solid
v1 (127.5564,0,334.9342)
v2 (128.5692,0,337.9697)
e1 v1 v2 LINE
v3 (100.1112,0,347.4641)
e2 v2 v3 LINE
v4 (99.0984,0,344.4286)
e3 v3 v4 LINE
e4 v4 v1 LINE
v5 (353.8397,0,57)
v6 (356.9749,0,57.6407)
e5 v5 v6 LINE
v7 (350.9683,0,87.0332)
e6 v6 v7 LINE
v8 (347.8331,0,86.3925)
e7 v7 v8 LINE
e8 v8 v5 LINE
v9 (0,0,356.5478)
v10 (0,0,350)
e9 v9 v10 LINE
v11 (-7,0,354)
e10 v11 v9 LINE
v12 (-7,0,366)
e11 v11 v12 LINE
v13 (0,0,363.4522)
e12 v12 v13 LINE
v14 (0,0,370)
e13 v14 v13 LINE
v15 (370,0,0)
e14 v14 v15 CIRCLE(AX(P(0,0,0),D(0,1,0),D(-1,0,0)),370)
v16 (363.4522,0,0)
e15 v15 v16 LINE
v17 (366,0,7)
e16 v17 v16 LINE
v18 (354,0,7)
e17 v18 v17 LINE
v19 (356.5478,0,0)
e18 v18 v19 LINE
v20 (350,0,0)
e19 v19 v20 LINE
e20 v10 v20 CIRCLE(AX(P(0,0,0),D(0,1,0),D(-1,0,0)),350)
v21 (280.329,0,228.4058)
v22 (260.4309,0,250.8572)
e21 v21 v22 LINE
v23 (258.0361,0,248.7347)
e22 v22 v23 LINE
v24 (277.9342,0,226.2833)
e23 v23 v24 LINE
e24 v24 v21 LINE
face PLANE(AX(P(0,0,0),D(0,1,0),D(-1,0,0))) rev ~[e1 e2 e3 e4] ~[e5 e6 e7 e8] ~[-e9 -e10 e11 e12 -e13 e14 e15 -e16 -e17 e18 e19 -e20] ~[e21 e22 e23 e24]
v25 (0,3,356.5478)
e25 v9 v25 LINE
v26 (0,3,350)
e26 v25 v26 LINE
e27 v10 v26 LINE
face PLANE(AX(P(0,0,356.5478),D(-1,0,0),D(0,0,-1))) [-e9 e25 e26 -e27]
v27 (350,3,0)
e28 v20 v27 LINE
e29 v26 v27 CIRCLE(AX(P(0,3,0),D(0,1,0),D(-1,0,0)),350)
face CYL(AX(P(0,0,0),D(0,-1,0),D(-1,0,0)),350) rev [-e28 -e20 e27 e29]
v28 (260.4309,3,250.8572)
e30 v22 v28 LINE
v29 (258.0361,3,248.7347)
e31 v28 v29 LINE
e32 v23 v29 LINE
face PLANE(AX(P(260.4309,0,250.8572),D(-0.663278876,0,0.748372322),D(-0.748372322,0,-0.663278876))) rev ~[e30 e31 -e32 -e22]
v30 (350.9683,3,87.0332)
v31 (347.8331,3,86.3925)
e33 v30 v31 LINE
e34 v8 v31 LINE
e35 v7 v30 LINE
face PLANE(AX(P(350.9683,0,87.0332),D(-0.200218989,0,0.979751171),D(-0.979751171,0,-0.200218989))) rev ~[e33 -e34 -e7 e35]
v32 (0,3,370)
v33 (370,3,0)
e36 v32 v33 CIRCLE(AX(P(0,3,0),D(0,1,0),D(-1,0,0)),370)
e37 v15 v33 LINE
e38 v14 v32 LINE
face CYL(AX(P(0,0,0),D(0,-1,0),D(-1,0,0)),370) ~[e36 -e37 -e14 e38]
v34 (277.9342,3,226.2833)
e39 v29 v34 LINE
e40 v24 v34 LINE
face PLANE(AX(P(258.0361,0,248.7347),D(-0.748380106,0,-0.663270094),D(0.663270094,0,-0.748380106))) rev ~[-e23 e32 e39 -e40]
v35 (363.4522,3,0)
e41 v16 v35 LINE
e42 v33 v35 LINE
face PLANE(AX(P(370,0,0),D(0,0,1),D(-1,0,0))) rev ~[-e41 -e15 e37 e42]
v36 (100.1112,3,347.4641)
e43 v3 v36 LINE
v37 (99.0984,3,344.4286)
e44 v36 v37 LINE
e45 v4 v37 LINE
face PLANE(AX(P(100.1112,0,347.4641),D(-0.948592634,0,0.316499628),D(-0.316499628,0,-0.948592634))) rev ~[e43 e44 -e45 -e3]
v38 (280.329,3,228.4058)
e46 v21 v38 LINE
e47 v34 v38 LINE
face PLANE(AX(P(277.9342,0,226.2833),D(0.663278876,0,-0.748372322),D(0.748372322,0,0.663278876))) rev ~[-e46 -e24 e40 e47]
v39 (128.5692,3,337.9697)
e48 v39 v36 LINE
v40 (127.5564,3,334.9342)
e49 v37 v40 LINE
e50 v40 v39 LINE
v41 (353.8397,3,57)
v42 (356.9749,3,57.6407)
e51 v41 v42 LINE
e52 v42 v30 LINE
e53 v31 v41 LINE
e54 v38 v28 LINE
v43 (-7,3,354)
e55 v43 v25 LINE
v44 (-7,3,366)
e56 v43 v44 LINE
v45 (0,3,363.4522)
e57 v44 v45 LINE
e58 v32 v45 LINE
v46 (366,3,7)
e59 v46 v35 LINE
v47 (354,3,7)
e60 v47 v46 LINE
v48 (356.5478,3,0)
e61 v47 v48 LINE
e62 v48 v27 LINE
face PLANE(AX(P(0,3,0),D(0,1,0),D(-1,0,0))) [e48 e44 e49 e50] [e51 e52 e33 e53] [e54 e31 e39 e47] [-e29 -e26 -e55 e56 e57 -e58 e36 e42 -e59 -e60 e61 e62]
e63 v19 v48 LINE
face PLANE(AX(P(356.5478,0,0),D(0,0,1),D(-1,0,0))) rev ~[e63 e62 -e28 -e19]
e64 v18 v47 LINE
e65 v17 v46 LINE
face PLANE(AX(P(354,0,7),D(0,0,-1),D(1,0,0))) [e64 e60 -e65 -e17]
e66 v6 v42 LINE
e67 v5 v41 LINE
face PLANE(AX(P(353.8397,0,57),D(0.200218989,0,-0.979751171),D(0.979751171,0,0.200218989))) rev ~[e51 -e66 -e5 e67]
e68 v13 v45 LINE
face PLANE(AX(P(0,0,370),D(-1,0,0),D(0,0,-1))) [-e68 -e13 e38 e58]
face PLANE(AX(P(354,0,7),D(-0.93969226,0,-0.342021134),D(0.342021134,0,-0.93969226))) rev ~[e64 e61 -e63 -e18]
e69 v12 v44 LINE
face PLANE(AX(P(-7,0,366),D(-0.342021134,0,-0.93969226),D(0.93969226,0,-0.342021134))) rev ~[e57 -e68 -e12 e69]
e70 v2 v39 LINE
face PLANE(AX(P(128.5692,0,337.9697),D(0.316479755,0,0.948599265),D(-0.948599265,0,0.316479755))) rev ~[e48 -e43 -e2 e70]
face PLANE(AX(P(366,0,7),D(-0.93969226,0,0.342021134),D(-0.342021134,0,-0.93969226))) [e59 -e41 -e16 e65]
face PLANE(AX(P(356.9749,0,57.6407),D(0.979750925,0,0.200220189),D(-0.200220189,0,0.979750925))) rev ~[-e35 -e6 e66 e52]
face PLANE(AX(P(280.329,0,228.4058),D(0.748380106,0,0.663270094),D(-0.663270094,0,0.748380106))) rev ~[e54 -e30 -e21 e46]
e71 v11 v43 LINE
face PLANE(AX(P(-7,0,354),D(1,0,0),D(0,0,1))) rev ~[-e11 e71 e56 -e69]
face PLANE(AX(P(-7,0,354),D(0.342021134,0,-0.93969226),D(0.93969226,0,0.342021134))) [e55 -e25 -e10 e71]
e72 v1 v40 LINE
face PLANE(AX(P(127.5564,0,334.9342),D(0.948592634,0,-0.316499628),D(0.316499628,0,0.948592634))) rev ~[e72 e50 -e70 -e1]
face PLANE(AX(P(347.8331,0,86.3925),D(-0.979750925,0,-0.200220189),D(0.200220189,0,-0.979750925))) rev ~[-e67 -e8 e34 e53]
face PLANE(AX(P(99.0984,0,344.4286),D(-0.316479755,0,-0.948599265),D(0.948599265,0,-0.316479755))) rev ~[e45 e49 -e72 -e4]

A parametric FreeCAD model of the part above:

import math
import FreeCAD as App
import Part
import Sketcher
from FreeCAD import Vector
Q = App.Units.Quantity


def add_polygon(sketch, points):
    """Adds a closed chain of lines whose ends are joined by coincident constraints."""
    first, n = sketch.GeometryCount, len(points)
    for a, b in zip(points, points[1:] + points[:1]):
        sketch.addGeometry(Part.LineSegment(App.Vector(*a, 0), App.Vector(*b, 0)), False)
    for i in range(n):
        sketch.addConstraint(Sketcher.Constraint("Coincident", first + i, 2, first + (i + 1) % n, 1))

doc = App.newDocument("Part")
body = doc.addObject("PartDesign::Body", "Body")

# Sketch on XZ plane
sketch1 = doc.addObject("Sketcher::SketchObject", "Sketch")
body.addObject(sketch1)
sketch1.AttachmentSupport = (doc.XZ_Plane, [""])
sketch1.MapMode = "FlatFace"
sketch1.addGeometry(Part.ArcOfCircle(Part.Circle(Vector(0, 0, 0), Vector(0, 0, 1), 350), math.radians(0), math.radians(90)), False)  # 0
sketch1.addGeometry(Part.LineSegment(Vector(0, 350, 0), Vector(0, 356.5, 0)), False)  # 1
sketch1.addGeometry(Part.LineSegment(Vector(0, 356.5, 0), Vector(-7, 354, 0)), False)  # 2
sketch1.addGeometry(Part.LineSegment(Vector(-7, 354, 0), Vector(-7, 366, 0)), False)  # 3
sketch1.addGeometry(Part.LineSegment(Vector(-7, 366, 0), Vector(0, 363.5, 0)), False)  # 4
sketch1.addGeometry(Part.LineSegment(Vector(0, 363.5, 0), Vector(0, 370, 0)), False)  # 5
sketch1.addGeometry(Part.ArcOfCircle(Part.Circle(Vector(0, 0, 0), Vector(0, 0, 1), 370), math.radians(0), math.radians(90)), False)  # 6
sketch1.addGeometry(Part.LineSegment(Vector(370, 0, 0), Vector(363.5, 0, 0)), False)  # 7
sketch1.addGeometry(Part.LineSegment(Vector(363.5, 0, 0), Vector(366, 7, 0)), False)  # 8
sketch1.addGeometry(Part.LineSegment(Vector(366, 7, 0), Vector(354, 7, 0)), False)  # 9
sketch1.addGeometry(Part.LineSegment(Vector(354, 7, 0), Vector(356.5, 0, 0)), False)  # 10
sketch1.addGeometry(Part.LineSegment(Vector(356.5, 0, 0), Vector(350, 0, 0)), False)  # 11
add_polygon(sketch1, [(353.8, 57), (357, 57.6), (351, 87), (347.8, 86.4)])  # lines 12-15
add_polygon(sketch1, [(277.9, 226.3), (280.3, 228.4), (260.4, 250.9), (258, 248.7)])  # lines 16-19
add_polygon(sketch1, [(127.6, 334.9), (128.6, 338), (100.1, 347.5), (99.1, 344.4)])  # lines 20-23
sketch1.addConstraint(Sketcher.Constraint("Coincident", 0, 2, 1, 1))
sketch1.addConstraint(Sketcher.Constraint("Coincident", 1, 2, 2, 1))
sketch1.addConstraint(Sketcher.Constraint("Coincident", 2, 2, 3, 1))
sketch1.addConstraint(Sketcher.Constraint("Coincident", 3, 2, 4, 1))
sketch1.addConstraint(Sketcher.Constraint("Coincident", 4, 2, 5, 1))
sketch1.addConstraint(Sketcher.Constraint("Coincident", 5, 2, 6, 2))
sketch1.addConstraint(Sketcher.Constraint("Coincident", 6, 1, 7, 1))
sketch1.addConstraint(Sketcher.Constraint("Coincident", 7, 2, 8, 1))
sketch1.addConstraint(Sketcher.Constraint("Coincident", 8, 2, 9, 1))
sketch1.addConstraint(Sketcher.Constraint("Coincident", 9, 2, 10, 1))
sketch1.addConstraint(Sketcher.Constraint("Coincident", 10, 2, 11, 1))
sketch1.addConstraint(Sketcher.Constraint("Coincident", 11, 2, 0, 1))
sketch1.addConstraint(Sketcher.Constraint("Vertical", 1))
sketch1.addConstraint(Sketcher.Constraint("Vertical", 3))
sketch1.addConstraint(Sketcher.Constraint("Vertical", 5))
sketch1.addConstraint(Sketcher.Constraint("Horizontal", 7))
sketch1.addConstraint(Sketcher.Constraint("Horizontal", 9))
sketch1.addConstraint(Sketcher.Constraint("Horizontal", 11))
sketch1.addConstraint(Sketcher.Constraint("Coincident", 0, 3, -1, 1))
sketch1.addConstraint(Sketcher.Constraint("Coincident", 6, 3, -1, 1))
sketch1.addConstraint(Sketcher.Constraint("PointOnObject", 1, 2, -2))
sketch1.addConstraint(Sketcher.Constraint("PointOnObject", 4, 2, -2))
sketch1.addConstraint(Sketcher.Constraint("PointOnObject", 7, 2, -1))
sketch1.addConstraint(Sketcher.Constraint("PointOnObject", 10, 2, -1))
sketch1.addConstraint(Sketcher.Constraint("Perpendicular", 4, 8))
sketch1.addConstraint(Sketcher.Constraint("Perpendicular", 2, 10))
sketch1.addConstraint(Sketcher.Constraint("Perpendicular", 12, 13))
sketch1.addConstraint(Sketcher.Constraint("Perpendicular", 13, 14))
sketch1.addConstraint(Sketcher.Constraint("Perpendicular", 14, 15))
sketch1.addConstraint(Sketcher.Constraint("Perpendicular", 16, 17))
sketch1.addConstraint(Sketcher.Constraint("Perpendicular", 17, 18))
sketch1.addConstraint(Sketcher.Constraint("Perpendicular", 18, 19))
sketch1.addConstraint(Sketcher.Constraint("Perpendicular", 20, 21))
sketch1.addConstraint(Sketcher.Constraint("Perpendicular", 21, 22))
sketch1.addConstraint(Sketcher.Constraint("Perpendicular", 22, 23))
sketch1.addConstraint(Sketcher.Constraint("Equal", 7, 11))
sketch1.addConstraint(Sketcher.Constraint("Equal", 11, 1))
sketch1.addConstraint(Sketcher.Constraint("Equal", 9, 3))
sketch1.addConstraint(Sketcher.Constraint("Equal", 1, 5))
sketch1.addConstraint(Sketcher.Constraint("Equal", 2, 4))
sketch1.addConstraint(Sketcher.Constraint("Equal", 14, 16))
sketch1.addConstraint(Sketcher.Constraint("Equal", 15, 17))
sketch1.addConstraint(Sketcher.Constraint("Equal", 18, 20))
sketch1.addConstraint(Sketcher.Constraint("Equal", 19, 21))
sketch1.addConstraint(Sketcher.Constraint("Radius", 0, Q("350 mm")))
sketch1.addConstraint(Sketcher.Constraint("Radius", 6, Q("370 mm")))
sketch1.addConstraint(Sketcher.Constraint("DistanceX", 9, 2, 9, 1, Q("12 mm")))
sketch1.addConstraint(Sketcher.Constraint("Angle", 8, Q("70 deg")))
sketch1.addConstraint(Sketcher.Constraint("Distance", 13, Q("30 mm")))
sketch1.addConstraint(Sketcher.Constraint("DistanceX", 2, 2, -1, 1, Q("7 mm")))
sketch1.addConstraint(Sketcher.Constraint("DistanceY", 9, 2, 15, 2, Q("50 mm")))
sketch1.addConstraint(Sketcher.Constraint("Distance", 12, Q("3.2 mm")))
sketch1.addConstraint(Sketcher.Constraint("Angle", 12, Q("11.5498 deg")))
sketch1.addConstraint(Sketcher.Constraint("Angle", 16, Q("41.5504 deg")))
sketch1.addConstraint(Sketcher.Constraint("Angle", 21, Q("161.5498 deg")))
sketch1.addConstraint(Sketcher.Constraint("DistanceY", 13, 2, 19, 2, Q("139.25 mm")))
sketch1.addConstraint(Sketcher.Constraint("DistanceX", -1, 1, 12, 2, Q("356.975 mm")))
sketch1.addConstraint(Sketcher.Constraint("DistanceX", -1, 1, 16, 2, Q("280.329 mm")))
sketch1.addConstraint(Sketcher.Constraint("DistanceY", -1, 1, 21, 2, Q("347.464 mm")))
sketch1.addConstraint(Sketcher.Constraint("DistanceX", -1, 1, 20, 2, Q("128.5692 mm")))
pad1 = doc.addObject("PartDesign::Pad", "Pad")
body.addObject(pad1)
pad1.Profile = sketch1
pad1.Length = 3
pad1.Reversed = True

doc.recompute()
